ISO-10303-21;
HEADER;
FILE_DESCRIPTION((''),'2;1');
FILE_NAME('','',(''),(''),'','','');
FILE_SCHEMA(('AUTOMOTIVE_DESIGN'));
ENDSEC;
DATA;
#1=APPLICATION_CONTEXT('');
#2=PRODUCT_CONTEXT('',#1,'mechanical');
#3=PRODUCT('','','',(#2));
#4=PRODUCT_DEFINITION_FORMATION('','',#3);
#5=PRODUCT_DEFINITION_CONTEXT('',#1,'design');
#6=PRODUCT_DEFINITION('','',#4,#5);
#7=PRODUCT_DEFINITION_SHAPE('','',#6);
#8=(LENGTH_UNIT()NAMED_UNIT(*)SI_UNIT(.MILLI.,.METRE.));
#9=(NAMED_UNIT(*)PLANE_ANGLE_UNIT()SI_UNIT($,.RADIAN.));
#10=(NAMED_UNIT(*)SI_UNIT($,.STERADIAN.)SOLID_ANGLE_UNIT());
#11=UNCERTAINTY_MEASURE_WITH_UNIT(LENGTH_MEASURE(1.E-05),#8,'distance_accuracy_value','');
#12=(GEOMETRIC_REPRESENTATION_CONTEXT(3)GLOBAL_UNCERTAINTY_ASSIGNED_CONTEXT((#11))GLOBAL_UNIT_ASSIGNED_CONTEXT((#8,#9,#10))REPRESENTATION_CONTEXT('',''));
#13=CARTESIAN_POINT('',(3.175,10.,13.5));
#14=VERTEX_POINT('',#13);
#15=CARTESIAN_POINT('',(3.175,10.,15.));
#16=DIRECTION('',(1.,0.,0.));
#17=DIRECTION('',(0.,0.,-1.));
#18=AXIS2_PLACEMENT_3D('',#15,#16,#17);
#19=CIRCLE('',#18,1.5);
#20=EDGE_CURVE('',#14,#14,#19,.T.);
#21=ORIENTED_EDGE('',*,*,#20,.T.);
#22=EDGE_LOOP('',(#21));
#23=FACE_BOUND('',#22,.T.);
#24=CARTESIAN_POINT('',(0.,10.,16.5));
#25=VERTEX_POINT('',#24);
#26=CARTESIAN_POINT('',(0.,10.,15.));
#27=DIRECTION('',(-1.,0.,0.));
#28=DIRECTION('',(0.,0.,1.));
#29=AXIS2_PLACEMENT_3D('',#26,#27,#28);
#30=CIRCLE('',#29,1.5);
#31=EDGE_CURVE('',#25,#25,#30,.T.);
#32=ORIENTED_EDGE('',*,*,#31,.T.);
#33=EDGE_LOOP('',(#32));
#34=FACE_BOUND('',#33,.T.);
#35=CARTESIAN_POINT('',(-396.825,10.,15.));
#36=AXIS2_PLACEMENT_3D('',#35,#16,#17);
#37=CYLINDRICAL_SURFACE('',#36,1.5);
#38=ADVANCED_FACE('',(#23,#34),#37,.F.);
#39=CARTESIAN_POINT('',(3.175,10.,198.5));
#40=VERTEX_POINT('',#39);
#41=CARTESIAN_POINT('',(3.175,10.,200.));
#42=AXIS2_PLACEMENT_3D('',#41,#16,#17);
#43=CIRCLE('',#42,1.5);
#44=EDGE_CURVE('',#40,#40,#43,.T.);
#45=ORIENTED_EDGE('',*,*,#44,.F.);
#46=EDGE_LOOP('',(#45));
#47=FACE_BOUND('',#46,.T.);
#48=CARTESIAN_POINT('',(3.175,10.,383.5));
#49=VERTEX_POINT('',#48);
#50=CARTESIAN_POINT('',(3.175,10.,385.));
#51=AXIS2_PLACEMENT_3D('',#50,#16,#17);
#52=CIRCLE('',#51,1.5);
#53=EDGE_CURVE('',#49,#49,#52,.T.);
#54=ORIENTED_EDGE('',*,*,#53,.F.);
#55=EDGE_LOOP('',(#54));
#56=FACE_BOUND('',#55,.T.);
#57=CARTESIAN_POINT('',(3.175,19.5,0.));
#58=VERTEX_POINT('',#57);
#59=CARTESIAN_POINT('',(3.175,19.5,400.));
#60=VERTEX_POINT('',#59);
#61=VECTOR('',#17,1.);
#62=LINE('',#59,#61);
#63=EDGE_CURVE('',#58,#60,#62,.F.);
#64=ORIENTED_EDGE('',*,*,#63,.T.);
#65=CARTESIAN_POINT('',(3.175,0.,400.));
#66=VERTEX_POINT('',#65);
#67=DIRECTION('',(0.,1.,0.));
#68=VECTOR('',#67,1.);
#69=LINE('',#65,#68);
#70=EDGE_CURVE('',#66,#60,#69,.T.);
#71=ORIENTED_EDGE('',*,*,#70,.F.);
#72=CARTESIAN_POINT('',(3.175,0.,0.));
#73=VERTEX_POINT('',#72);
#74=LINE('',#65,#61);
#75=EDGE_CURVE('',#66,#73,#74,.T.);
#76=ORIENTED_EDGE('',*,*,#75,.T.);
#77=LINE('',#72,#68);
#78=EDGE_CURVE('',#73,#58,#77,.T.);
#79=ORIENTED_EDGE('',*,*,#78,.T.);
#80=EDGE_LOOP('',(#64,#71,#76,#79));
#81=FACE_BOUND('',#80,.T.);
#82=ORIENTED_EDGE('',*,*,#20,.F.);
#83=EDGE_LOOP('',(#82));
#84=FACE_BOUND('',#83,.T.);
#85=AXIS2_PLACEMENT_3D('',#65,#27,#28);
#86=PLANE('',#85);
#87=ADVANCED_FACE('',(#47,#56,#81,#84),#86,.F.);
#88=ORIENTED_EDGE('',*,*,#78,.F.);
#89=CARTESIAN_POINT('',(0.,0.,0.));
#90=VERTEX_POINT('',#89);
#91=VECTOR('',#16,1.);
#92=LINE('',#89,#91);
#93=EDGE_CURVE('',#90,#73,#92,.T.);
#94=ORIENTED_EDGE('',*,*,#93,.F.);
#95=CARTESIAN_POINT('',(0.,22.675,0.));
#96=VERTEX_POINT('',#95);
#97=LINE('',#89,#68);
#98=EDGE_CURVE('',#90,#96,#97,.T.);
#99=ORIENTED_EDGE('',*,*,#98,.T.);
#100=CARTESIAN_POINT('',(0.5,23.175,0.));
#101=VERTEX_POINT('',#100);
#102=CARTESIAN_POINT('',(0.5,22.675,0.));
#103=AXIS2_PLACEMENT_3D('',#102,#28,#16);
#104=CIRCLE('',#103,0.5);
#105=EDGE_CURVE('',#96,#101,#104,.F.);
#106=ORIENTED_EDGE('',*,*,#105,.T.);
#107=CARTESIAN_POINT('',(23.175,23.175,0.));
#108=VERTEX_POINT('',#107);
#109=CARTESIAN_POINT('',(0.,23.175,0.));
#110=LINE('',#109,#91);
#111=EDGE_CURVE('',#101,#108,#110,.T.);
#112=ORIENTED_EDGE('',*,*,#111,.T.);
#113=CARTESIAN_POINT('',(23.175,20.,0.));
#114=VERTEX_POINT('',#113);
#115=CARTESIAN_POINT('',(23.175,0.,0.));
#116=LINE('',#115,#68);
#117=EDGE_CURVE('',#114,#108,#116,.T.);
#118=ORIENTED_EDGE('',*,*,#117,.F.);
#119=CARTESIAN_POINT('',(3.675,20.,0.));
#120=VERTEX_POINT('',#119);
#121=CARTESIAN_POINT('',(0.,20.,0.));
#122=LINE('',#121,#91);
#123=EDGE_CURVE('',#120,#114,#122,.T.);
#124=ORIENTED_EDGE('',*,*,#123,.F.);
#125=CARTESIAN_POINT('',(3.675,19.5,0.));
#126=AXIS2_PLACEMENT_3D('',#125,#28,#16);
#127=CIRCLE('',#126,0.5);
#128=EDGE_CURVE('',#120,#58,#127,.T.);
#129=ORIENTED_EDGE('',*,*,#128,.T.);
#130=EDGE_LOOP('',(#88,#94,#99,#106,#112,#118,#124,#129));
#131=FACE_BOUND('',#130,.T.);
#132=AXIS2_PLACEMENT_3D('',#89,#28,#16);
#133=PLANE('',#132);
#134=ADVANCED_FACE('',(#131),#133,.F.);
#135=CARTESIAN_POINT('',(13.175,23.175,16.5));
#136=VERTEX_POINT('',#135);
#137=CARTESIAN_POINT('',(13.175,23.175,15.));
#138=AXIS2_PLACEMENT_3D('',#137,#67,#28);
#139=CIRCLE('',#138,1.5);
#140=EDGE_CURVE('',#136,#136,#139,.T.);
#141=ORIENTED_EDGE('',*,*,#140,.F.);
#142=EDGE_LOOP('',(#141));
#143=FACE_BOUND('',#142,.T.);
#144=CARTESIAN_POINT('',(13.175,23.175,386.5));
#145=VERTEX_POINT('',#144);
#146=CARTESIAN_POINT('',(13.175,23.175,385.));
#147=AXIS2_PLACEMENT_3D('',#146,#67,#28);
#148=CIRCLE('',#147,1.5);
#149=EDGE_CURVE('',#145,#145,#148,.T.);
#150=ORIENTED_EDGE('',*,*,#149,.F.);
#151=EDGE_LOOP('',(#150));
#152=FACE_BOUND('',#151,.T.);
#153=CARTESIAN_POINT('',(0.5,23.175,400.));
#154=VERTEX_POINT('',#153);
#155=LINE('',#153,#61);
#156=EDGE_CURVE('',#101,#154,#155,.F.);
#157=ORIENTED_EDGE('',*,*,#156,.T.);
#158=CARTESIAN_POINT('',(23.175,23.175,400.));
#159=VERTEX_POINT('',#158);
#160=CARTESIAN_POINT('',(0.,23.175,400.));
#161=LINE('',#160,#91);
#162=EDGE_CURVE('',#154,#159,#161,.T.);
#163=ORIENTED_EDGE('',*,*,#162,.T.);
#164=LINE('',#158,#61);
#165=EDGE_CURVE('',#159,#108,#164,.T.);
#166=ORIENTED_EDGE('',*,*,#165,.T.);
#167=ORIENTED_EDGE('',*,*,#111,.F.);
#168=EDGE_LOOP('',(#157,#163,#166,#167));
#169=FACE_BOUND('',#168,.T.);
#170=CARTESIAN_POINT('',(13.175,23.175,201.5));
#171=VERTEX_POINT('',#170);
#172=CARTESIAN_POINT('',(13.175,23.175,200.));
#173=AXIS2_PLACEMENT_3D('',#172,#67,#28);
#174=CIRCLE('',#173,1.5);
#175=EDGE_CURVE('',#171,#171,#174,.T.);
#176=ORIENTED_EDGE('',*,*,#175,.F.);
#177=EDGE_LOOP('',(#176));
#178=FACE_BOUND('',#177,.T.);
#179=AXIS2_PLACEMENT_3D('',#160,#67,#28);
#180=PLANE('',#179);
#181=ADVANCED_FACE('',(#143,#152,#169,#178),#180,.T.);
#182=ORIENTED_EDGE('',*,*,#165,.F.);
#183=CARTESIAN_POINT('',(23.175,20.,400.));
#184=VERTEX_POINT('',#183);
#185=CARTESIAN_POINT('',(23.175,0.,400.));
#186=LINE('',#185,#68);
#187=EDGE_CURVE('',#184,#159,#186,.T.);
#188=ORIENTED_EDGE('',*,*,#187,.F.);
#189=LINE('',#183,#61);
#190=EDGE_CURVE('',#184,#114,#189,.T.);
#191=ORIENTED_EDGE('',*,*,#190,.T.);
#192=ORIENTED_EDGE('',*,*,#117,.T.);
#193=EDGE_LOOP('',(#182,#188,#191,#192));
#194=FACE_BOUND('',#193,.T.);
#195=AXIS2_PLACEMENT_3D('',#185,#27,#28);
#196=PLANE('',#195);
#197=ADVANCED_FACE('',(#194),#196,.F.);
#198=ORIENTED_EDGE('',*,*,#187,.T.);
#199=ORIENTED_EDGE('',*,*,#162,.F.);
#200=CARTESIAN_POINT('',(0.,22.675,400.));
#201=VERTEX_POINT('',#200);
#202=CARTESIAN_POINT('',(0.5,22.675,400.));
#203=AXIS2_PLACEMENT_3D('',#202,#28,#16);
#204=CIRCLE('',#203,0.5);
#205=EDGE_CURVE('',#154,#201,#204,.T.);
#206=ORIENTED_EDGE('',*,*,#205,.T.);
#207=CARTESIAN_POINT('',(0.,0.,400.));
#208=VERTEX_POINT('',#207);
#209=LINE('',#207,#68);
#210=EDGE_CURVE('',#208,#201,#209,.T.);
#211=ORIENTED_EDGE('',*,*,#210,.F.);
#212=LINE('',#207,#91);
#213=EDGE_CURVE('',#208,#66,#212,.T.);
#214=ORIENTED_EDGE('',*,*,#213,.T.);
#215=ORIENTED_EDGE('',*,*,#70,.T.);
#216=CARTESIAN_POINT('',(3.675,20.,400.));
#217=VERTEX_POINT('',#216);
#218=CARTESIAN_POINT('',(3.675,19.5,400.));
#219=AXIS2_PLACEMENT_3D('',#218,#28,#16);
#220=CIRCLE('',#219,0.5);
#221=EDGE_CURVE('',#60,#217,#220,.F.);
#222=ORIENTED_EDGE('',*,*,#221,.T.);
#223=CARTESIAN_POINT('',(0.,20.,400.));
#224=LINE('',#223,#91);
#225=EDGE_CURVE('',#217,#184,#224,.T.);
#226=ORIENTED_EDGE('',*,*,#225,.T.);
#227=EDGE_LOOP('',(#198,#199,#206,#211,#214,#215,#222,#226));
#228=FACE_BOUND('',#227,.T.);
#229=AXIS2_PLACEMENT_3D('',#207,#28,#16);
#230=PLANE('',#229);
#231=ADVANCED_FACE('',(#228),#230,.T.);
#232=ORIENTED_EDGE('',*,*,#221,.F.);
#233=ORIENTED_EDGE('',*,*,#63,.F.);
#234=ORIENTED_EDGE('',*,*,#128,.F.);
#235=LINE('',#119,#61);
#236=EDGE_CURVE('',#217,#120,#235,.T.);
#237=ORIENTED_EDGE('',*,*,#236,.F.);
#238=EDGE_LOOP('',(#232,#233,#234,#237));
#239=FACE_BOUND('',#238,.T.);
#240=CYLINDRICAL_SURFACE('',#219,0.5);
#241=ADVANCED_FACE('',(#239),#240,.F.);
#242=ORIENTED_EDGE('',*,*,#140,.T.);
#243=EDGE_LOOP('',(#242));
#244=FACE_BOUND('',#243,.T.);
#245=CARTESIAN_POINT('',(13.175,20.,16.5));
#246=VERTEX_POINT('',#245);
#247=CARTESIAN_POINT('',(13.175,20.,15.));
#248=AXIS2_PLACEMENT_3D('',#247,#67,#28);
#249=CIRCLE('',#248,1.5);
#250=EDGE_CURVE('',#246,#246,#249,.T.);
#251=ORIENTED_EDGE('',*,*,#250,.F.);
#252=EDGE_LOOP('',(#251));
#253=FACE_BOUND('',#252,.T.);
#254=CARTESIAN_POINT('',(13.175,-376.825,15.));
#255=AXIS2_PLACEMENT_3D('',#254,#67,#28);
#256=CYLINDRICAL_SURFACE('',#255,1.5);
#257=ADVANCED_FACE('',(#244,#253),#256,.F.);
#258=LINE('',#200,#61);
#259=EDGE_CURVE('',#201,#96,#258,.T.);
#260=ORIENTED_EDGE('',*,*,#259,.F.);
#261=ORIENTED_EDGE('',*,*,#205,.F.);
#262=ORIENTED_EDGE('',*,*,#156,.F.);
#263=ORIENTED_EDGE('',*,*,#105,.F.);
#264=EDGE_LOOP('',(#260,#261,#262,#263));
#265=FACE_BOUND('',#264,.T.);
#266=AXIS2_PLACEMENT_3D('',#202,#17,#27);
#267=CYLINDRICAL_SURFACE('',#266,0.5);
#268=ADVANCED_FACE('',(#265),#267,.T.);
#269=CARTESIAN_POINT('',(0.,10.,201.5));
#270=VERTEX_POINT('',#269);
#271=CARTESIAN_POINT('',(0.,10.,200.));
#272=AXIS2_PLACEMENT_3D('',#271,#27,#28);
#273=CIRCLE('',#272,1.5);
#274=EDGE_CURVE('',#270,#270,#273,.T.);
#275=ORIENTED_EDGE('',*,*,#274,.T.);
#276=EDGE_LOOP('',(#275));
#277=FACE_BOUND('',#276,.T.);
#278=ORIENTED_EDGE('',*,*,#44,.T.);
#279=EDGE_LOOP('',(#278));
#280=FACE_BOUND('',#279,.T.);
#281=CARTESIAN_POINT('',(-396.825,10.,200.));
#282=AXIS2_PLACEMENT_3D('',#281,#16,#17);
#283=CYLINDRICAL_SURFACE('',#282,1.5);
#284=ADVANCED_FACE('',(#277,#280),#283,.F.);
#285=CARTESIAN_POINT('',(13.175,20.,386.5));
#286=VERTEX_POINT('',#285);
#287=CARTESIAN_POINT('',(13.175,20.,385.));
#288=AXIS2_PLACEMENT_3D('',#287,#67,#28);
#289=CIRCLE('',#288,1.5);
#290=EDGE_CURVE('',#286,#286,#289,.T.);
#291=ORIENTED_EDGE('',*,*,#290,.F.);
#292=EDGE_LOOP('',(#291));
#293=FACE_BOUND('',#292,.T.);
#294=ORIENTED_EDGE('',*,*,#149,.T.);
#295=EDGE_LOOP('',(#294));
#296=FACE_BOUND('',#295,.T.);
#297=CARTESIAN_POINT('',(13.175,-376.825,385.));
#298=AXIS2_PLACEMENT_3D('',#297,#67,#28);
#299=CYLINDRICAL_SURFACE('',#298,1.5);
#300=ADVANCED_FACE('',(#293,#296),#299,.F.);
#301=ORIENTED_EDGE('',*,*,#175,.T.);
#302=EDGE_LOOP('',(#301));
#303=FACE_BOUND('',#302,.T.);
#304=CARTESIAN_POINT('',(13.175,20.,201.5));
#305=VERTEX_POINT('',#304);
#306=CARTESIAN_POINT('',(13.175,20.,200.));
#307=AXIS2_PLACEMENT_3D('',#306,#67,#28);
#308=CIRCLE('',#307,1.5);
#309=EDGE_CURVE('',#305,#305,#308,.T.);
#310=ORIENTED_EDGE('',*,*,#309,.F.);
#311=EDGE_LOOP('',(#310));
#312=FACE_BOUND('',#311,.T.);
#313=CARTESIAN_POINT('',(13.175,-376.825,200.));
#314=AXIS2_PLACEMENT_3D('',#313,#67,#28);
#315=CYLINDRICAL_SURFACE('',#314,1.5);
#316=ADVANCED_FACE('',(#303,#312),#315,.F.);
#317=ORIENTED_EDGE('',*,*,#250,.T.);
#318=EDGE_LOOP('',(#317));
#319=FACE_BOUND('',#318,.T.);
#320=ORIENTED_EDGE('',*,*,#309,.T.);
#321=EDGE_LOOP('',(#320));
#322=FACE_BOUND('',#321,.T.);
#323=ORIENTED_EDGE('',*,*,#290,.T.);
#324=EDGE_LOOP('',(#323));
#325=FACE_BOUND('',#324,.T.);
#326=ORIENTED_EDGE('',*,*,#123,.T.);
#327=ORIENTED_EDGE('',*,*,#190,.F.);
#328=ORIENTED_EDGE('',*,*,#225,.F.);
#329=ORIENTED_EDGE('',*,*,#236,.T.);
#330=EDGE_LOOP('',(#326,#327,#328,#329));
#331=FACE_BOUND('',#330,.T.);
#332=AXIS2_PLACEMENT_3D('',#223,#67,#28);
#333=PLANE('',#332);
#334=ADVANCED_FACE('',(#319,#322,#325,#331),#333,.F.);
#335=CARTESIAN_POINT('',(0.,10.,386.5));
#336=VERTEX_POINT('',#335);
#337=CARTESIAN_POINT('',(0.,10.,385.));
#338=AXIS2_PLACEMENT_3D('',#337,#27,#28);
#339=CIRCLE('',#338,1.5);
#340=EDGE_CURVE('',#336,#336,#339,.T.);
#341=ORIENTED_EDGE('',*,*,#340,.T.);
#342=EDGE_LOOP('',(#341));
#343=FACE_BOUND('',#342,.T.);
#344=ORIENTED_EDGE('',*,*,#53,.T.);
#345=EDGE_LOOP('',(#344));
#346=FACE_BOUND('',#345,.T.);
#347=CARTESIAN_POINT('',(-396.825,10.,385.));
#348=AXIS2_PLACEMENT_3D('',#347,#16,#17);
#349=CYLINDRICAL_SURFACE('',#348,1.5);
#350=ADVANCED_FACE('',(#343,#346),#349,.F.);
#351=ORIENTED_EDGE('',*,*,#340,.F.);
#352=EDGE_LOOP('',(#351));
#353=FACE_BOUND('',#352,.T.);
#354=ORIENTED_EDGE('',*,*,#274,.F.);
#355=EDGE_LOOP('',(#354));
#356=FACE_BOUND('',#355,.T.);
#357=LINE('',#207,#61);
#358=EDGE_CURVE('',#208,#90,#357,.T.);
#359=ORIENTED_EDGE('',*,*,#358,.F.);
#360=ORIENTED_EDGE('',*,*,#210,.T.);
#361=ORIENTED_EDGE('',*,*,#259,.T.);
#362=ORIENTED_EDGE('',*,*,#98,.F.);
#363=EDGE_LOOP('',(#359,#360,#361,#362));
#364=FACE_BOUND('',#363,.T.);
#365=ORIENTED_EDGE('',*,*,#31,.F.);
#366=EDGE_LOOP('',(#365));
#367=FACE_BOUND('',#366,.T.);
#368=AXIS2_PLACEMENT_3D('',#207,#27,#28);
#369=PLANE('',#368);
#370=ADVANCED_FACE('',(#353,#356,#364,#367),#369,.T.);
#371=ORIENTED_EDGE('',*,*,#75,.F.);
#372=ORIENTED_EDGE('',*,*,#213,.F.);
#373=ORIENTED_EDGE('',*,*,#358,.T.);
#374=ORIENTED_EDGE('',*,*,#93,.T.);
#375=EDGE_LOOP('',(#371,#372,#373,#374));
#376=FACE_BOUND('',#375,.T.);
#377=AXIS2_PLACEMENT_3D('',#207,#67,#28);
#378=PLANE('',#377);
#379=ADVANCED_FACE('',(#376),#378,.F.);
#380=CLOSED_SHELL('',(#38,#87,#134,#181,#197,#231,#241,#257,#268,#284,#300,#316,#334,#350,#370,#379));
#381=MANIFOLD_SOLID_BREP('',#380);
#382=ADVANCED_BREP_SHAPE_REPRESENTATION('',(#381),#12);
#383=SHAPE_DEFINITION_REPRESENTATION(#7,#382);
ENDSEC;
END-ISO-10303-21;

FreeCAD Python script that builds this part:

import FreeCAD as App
import Part
import Sketcher

V = App.Vector


def edges_at(feature, points):
    """Names of the edges that pass closest to the given points."""
    edges = feature.Shape.Edges
    near = lambda p: min(range(len(edges)), key=lambda i: edges[i].distToShape(Part.Vertex(*p))[0])
    return sorted({f"Edge{near(p) + 1}" for p in points})


def add_polygon(sketch, points):
    """Adds a closed chain of lines whose ends are joined by coincident constraints."""
    first, n = sketch.GeometryCount, len(points)
    for a, b in zip(points, points[1:] + points[:1]):
        sketch.addGeometry(Part.LineSegment(App.Vector(*a, 0), App.Vector(*b, 0)), False)
    for i in range(n):
        sketch.addConstraint(Sketcher.Constraint("Coincident", first + i, 2, first + (i + 1) % n, 1))

doc = App.newDocument("Part")
body = doc.addObject("PartDesign::Body", "Body")

sketch1 = body.newObject("Sketcher::SketchObject", "Sketch")
sketch1.AttachmentSupport = (doc.getObject("XY_Plane"), [""])
sketch1.MapMode = "FlatFace"
add_polygon(sketch1, [(0, 0), (3.175, 0), (3.175, 20), (23.175, 20), (23.175, 23.175), (0, 23.175)])
sketch1.addConstraint([
    Sketcher.Constraint("Horizontal", 0),
    Sketcher.Constraint("Vertical", 1),
    Sketcher.Constraint("Horizontal", 2),
    Sketcher.Constraint("Vertical", 3),
    Sketcher.Constraint("Horizontal", 4),
    Sketcher.Constraint("Vertical", 5),
    Sketcher.Constraint("Coincident", 5, 2, -1, 1),
    Sketcher.Constraint("Equal", 2, 1),
    Sketcher.Constraint("Equal", 0, 3),
    Sketcher.Constraint("DistanceX", 2, 1, 2, 2, 20.0),
    Sketcher.Constraint("DistanceX", 0, 1, 0, 2, 3.175),
])
pad1 = body.newObject("PartDesign::Pad", "Pad")
pad1.Profile = sketch1
pad1.Length = 400

sketch2 = body.newObject("Sketcher::SketchObject", "Sketch001")
sketch2.AttachmentSupport = (doc.getObject("XZ_Plane"), [""])
sketch2.MapMode = "FlatFace"
sketch2.AttachmentOffset = App.Placement(V(0, 0, -23.175), App.Rotation())
sketch2.addGeometry([
    Part.Circle(V(13.175, 200, 0), V(0, 0, 1), 1.5),
    Part.Circle(V(13.175, 385, 0), V(0, 0, 1), 1.5),
    Part.Circle(V(13.175, 15, 0), V(0, 0, 1), 1.5),
], False)
sketch2.addConstraint([
    Sketcher.Constraint("Equal", 0, 1),
    Sketcher.Constraint("Equal", 1, 2),
    Sketcher.Constraint("Vertical", 0, 3, 1, 3),
    Sketcher.Constraint("Vertical", 1, 3, 2, 3),
    Sketcher.Constraint("Diameter", 0, 3.0),
    Sketcher.Constraint("DistanceY", -1, 1, 0, 3, 200.0),
    Sketcher.Constraint("DistanceY", -1, 1, 1, 3, 385.0),
    Sketcher.Constraint("DistanceY", -1, 1, 2, 3, 15.0),
    Sketcher.Constraint("DistanceX", -1, 1, 0, 3, 13.175),
])
pocket1 = body.newObject("PartDesign::Pocket", "Pocket")
pocket1.Profile = sketch2
pocket1.Length = 400
pocket1.Reversed = True

sketch3 = body.newObject("Sketcher::SketchObject", "Sketch002")
sketch3.AttachmentSupport = (doc.getObject("YZ_Plane"), [""])
sketch3.MapMode = "FlatFace"
sketch3.AttachmentOffset = App.Placement(V(0, 0, 3.175), App.Rotation())
sketch3.addGeometry([
    Part.Circle(V(10, 385, 0), V(0, 0, 1), 1.5),
    Part.Circle(V(10, 200, 0), V(0, 0, 1), 1.5),
    Part.Circle(V(10, 15, 0), V(0, 0, 1), 1.5),
], False)
sketch3.addConstraint([
    Sketcher.Constraint("Equal", 0, 1),
    Sketcher.Constraint("Equal", 1, 2),
    Sketcher.Constraint("Vertical", 0, 3, 1, 3),
    Sketcher.Constraint("Vertical", 1, 3, 2, 3),
    Sketcher.Constraint("Diameter", 0, 3.0),
    Sketcher.Constraint("DistanceX", -1, 1, 0, 3, 10.0),
    Sketcher.Constraint("DistanceY", -1, 1, 0, 3, 385.0),
    Sketcher.Constraint("DistanceY", -1, 1, 1, 3, 200.0),
    Sketcher.Constraint("DistanceY", -1, 1, 2, 3, 15.0),
])
pocket2 = body.newObject("PartDesign::Pocket", "Pocket001")
pocket2.Profile = sketch3
pocket2.Length = 400
doc.recompute()

fillet = body.newObject("PartDesign::Fillet", "Fillet")
fillet.Base = (pocket2, edges_at(pocket2, [(0, 23.175, 200), (3.175, 20, 200)]))
fillet.Radius = 0.5

doc.recompute()
